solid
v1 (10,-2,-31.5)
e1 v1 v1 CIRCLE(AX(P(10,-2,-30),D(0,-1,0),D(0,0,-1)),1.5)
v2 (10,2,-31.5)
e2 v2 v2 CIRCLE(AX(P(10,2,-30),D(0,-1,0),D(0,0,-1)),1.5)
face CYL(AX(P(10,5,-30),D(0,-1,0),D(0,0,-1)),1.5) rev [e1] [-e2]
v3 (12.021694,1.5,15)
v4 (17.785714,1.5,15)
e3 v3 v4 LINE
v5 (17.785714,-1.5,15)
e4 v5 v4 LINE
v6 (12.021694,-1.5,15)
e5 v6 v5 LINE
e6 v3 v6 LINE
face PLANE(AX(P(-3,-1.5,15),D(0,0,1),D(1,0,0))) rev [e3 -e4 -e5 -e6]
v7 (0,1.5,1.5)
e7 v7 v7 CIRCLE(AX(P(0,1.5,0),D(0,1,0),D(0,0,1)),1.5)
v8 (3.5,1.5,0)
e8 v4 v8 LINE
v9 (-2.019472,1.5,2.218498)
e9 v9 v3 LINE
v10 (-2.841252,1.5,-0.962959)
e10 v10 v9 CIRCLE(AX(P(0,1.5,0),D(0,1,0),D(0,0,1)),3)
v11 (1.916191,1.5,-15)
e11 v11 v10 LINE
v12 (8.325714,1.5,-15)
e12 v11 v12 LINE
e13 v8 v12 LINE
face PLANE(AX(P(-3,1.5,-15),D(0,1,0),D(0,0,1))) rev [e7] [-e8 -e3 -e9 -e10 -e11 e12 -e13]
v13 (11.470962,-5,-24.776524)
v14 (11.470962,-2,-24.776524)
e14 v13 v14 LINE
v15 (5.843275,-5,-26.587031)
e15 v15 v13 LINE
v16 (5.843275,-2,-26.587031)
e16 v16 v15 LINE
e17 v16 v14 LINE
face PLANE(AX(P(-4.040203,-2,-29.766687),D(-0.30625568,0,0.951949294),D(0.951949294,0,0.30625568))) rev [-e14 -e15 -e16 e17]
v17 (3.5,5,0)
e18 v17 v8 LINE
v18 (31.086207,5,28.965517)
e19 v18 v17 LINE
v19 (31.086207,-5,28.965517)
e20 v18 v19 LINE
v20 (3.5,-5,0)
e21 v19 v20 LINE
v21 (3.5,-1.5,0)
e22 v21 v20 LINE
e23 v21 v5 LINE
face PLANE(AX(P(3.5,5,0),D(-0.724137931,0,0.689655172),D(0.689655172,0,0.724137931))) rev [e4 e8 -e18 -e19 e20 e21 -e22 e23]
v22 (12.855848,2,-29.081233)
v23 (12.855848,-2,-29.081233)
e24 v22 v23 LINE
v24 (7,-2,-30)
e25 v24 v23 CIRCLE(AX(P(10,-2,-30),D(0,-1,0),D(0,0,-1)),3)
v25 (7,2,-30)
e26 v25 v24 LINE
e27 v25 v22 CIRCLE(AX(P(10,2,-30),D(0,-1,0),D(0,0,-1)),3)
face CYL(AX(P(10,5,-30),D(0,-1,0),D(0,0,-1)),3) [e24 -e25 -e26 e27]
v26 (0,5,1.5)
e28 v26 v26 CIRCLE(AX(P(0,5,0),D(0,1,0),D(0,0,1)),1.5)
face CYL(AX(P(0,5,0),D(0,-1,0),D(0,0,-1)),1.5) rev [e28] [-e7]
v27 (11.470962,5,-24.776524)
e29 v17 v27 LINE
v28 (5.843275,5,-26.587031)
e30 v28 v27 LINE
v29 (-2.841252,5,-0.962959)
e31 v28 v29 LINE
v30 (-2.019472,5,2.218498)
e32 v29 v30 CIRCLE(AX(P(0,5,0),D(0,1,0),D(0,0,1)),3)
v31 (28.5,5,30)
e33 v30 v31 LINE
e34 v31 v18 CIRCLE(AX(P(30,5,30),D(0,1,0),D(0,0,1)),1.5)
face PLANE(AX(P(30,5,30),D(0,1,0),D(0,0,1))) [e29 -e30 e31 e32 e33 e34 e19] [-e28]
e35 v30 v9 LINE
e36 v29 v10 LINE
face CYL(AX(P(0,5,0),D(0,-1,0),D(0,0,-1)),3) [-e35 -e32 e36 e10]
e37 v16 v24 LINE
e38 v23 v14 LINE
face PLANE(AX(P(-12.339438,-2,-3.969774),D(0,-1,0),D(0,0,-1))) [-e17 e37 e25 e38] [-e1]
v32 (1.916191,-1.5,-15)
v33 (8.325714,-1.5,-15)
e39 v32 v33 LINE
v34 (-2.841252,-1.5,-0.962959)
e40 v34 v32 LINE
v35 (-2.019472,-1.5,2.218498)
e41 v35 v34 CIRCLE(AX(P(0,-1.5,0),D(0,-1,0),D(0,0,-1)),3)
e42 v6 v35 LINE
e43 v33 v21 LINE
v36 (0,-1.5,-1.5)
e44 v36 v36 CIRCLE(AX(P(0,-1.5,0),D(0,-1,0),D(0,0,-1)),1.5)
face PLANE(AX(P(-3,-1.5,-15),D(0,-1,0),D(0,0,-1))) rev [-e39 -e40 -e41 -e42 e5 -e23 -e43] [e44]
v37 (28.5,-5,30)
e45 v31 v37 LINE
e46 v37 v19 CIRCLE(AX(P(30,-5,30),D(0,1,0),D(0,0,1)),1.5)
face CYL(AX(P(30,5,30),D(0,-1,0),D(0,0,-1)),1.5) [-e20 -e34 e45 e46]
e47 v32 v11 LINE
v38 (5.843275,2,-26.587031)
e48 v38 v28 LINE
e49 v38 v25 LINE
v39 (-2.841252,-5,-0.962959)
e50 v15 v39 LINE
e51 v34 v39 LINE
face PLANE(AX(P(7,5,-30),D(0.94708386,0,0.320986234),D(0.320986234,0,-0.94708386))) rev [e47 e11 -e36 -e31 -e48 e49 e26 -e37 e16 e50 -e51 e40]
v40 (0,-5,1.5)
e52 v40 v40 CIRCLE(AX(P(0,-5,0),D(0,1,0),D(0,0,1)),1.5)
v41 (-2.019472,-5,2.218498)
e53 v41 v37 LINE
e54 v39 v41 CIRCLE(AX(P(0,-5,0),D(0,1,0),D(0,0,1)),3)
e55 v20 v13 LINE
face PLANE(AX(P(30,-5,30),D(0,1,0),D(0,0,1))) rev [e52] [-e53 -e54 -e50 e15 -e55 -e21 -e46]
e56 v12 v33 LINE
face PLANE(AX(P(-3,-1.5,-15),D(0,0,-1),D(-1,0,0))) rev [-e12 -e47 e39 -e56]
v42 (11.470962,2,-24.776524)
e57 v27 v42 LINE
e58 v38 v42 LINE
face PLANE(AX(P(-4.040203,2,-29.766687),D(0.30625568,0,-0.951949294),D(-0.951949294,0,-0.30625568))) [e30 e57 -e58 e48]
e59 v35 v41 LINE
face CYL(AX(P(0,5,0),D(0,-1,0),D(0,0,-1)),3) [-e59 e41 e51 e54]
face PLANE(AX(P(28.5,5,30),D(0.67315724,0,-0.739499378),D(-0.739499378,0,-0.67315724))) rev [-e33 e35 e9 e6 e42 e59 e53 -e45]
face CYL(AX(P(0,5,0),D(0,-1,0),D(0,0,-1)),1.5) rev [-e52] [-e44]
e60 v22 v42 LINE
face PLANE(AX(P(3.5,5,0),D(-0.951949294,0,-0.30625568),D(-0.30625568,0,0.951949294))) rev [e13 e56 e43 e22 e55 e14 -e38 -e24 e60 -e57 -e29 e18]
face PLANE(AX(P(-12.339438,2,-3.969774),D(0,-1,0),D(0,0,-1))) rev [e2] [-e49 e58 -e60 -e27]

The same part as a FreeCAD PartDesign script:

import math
import FreeCAD as App
import Part
import Sketcher
Q = App.Units.Quantity


def add_polygon(sketch, points):
    """Adds a closed chain of lines whose ends are joined by coincident constraints."""
    first, n = sketch.GeometryCount, len(points)
    for a, b in zip(points, points[1:] + points[:1]):
        sketch.addGeometry(Part.LineSegment(App.Vector(*a, 0), App.Vector(*b, 0)), False)
    for i in range(n):
        sketch.addConstraint(Sketcher.Constraint("Coincident", first + i, 2, first + (i + 1) % n, 1))

doc = App.newDocument("Part")
params = doc.addObject("Spreadsheet::Sheet", "Params")
for row, (alias, value) in enumerate([
    ("sketch1_diameter", "3 mm"),
    ("sketch1_radius", "3 mm"),
    ("sketch1_length", "40 mm"),
    ("pad1_length", "10 mm"),
    ("sketch2_height", "3 mm"),
    ("sketch3_width", "3 mm"),
    ("sketch3_height", "30 mm"),
], start=1):
    params.set(f"A{row}", alias)
    params.set(f"B{row}", "=" + value)
    params.setAlias(f"B{row}", alias)

body = doc.addObject("PartDesign::Body", "Body")

sketch1 = doc.addObject("Sketcher::SketchObject", "Sketch")
body.addObject(sketch1)
sketch1.AttachmentSupport = (doc.XZ_Plane, [""])
sketch1.MapMode = "FlatFace"
sketch1.addGeometry(Part.LineSegment(App.Vector(-2, 2.2, 0), App.Vector(28.5, 30, 0)), False)
sketch1.addGeometry(Part.ArcOfCircle(Part.Circle(App.Vector(30, 30, 0), App.Vector(0, 0, 1), 1.5), math.radians(-44), math.radians(180)), False)
sketch1.addGeometry(Part.LineSegment(App.Vector(31.1, 29, 0), App.Vector(3.5, 0, 0)), False)
sketch1.addGeometry(Part.LineSegment(App.Vector(3.5, 0, 0), App.Vector(12.9, -29.1, 0)), False)
sketch1.addGeometry(Part.ArcOfCircle(Part.Circle(App.Vector(10, -30, 0), App.Vector(0, 0, 1), 3), math.radians(180), math.radians(378)), False)
sketch1.addGeometry(Part.LineSegment(App.Vector(7, -30, 0), App.Vector(-2.8, -1, 0)), False)
sketch1.addGeometry(Part.ArcOfCircle(Part.Circle(App.Vector(0, 0, 0), App.Vector(0, 0, 1), 3), math.radians(132), math.radians(199)), False)
sketch1.addGeometry(Part.Circle(App.Vector(0, 0, 0), App.Vector(0, 0, 1), 1.5), False)
sketch1.addGeometry(Part.Circle(App.Vector(10, -30, 0), App.Vector(0, 0, 1), 1.5), False)
sketch1.addConstraint(Sketcher.Constraint("Coincident", 0, 2, 1, 2))
sketch1.addConstraint(Sketcher.Constraint("Tangent", 1, 1, 2, 1))
sketch1.addConstraint(Sketcher.Constraint("Coincident", 2, 2, 3, 1))
sketch1.addConstraint(Sketcher.Constraint("Tangent", 3, 2, 4, 2))
sketch1.addConstraint(Sketcher.Constraint("Coincident", 4, 1, 5, 1))
sketch1.addConstraint(Sketcher.Constraint("Tangent", 5, 2, 6, 2))
sketch1.addConstraint(Sketcher.Constraint("Tangent", 6, 1, 0, 1))
sketch1.addConstraint(Sketcher.Constraint("Coincident", 6, 3, -1, 1))
sketch1.addConstraint(Sketcher.Constraint("Coincident", 7, 3, -1, 1))
sketch1.addConstraint(Sketcher.Constraint("Coincident", 8, 3, 4, 3))
sketch1.addConstraint(Sketcher.Constraint("Equal", 4, 6))
sketch1.addConstraint(Sketcher.Constraint("Equal", 1, 7))
sketch1.addConstraint(Sketcher.Constraint("Equal", 7, 8))
sketch1.addConstraint(Sketcher.Constraint("PointOnObject", 2, 2, -1))
sketch1.addConstraint(Sketcher.Constraint("Horizontal", 1, 3, 0, 2))
sketch1.addConstraint(Sketcher.Constraint("Horizontal", 8, 3, 4, 1))
sketch1.addConstraint(Sketcher.Constraint("Diameter", 7, Q("3 mm")))
sketch1.addConstraint(Sketcher.Constraint("Radius", 4, Q("3 mm")))
sketch1.addConstraint(Sketcher.Constraint("Distance", 2, Q("40 mm")))
sketch1.addConstraint(Sketcher.Constraint("DistanceX", -1, 1, 1, 3, Q("30 mm")))
sketch1.addConstraint(Sketcher.Constraint("DistanceY", -1, 1, 1, 3, Q("30 mm")))
sketch1.addConstraint(Sketcher.Constraint("DistanceX", -1, 1, 4, 3, Q("10 mm")))
sketch1.addConstraint(Sketcher.Constraint("DistanceY", 4, 3, -1, 1, Q("30 mm")))
sketch1.setExpression("Constraints[16]", "Params.sketch1_diameter")
sketch1.setExpression("Constraints[17]", "Params.sketch1_radius")
sketch1.setExpression("Constraints[18]", "Params.sketch1_length")
pad1 = doc.addObject("PartDesign::Pad", "Pad")
body.addObject(pad1)
pad1.Profile = sketch1
pad1.setExpression("Length", "Params.pad1_length")
pad1.Midplane = True

sketch2 = doc.addObject("Sketcher::SketchObject", "Sketch001")
body.addObject(sketch2)
sketch2.Placement = App.Placement(App.Vector(3.171726, 0, 1.02039), App.Rotation(App.Vector(0.30625568, 0, -0.951949294), App.Vector(0, 1, 0), App.Vector(0.951949294, 0, 0.30625568), "ZXY"))
add_polygon(sketch2, [(27.1, -2), (27.1, -5), (34.6, -5), (34.6, -2)])
add_polygon(sketch2, [(27.1, 5), (27.1, 2), (34.6, 2), (34.6, 5)])
sketch2.addConstraint(Sketcher.Constraint("Vertical", 0))
sketch2.addConstraint(Sketcher.Constraint("Horizontal", 1))
sketch2.addConstraint(Sketcher.Constraint("Vertical", 2))
sketch2.addConstraint(Sketcher.Constraint("Horizontal", 3))
sketch2.addConstraint(Sketcher.Constraint("Vertical", 4))
sketch2.addConstraint(Sketcher.Constraint("Horizontal", 5))
sketch2.addConstraint(Sketcher.Constraint("Vertical", 6))
sketch2.addConstraint(Sketcher.Constraint("Horizontal", 7))
sketch2.addConstraint(Sketcher.Constraint("Symmetric", 3, 2, 4, 2, -1))
sketch2.addConstraint(Sketcher.Constraint("Symmetric", 1, 2, 6, 2, -1))
sketch2.addConstraint(Sketcher.Constraint("DistanceY", 0, 2, 0, 1, Q("3 mm")))
sketch2.addConstraint(Sketcher.Constraint("DistanceY", 0, 2, -1, 1, Q("5 mm")))
sketch2.addConstraint(Sketcher.Constraint("DistanceX", 1, 1, 1, 2, Q("7.521994 mm")))
sketch2.addConstraint(Sketcher.Constraint("DistanceX", -1, 1, 0, 2, Q("27.099042 mm")))
sketch2.setExpression("Constraints[18]", "Params.sketch2_height")
pocket1 = doc.addObject("PartDesign::Pocket", "Pocket")
body.addObject(pocket1)
pocket1.Profile = sketch2
pocket1.Type = "ThroughAll"
pocket1.Midplane = True

sketch3 = doc.addObject("Sketcher::SketchObject", "Sketch002")
body.addObject(sketch3)
sketch3.AttachmentSupport = (doc.YZ_Plane, [""])
sketch3.MapMode = "FlatFace"
add_polygon(sketch3, [(1.5, 15), (-1.5, 15), (-1.5, -15), (1.5, -15)])
sketch3.addConstraint(Sketcher.Constraint("Horizontal", 0))
sketch3.addConstraint(Sketcher.Constraint("Vertical", 1))
sketch3.addConstraint(Sketcher.Constraint("Horizontal", 2))
sketch3.addConstraint(Sketcher.Constraint("Vertical", 3))
sketch3.addConstraint(Sketcher.Constraint("Symmetric", 0, 2, 2, 2, -1, 1))
sketch3.addConstraint(Sketcher.Constraint("DistanceX", 0, 2, 0, 1, Q("3 mm")))
sketch3.addConstraint(Sketcher.Constraint("DistanceY", 1, 2, 1, 1, Q("30 mm")))
sketch3.setExpression("Constraints[9]", "Params.sketch3_width")
sketch3.setExpression("Constraints[10]", "Params.sketch3_height")
pocket2 = doc.addObject("PartDesign::Pocket", "Pocket001")
body.addObject(pocket2)
pocket2.Profile = sketch3
pocket2.Type = "ThroughAll"
pocket2.Midplane = True

doc.recompute()
